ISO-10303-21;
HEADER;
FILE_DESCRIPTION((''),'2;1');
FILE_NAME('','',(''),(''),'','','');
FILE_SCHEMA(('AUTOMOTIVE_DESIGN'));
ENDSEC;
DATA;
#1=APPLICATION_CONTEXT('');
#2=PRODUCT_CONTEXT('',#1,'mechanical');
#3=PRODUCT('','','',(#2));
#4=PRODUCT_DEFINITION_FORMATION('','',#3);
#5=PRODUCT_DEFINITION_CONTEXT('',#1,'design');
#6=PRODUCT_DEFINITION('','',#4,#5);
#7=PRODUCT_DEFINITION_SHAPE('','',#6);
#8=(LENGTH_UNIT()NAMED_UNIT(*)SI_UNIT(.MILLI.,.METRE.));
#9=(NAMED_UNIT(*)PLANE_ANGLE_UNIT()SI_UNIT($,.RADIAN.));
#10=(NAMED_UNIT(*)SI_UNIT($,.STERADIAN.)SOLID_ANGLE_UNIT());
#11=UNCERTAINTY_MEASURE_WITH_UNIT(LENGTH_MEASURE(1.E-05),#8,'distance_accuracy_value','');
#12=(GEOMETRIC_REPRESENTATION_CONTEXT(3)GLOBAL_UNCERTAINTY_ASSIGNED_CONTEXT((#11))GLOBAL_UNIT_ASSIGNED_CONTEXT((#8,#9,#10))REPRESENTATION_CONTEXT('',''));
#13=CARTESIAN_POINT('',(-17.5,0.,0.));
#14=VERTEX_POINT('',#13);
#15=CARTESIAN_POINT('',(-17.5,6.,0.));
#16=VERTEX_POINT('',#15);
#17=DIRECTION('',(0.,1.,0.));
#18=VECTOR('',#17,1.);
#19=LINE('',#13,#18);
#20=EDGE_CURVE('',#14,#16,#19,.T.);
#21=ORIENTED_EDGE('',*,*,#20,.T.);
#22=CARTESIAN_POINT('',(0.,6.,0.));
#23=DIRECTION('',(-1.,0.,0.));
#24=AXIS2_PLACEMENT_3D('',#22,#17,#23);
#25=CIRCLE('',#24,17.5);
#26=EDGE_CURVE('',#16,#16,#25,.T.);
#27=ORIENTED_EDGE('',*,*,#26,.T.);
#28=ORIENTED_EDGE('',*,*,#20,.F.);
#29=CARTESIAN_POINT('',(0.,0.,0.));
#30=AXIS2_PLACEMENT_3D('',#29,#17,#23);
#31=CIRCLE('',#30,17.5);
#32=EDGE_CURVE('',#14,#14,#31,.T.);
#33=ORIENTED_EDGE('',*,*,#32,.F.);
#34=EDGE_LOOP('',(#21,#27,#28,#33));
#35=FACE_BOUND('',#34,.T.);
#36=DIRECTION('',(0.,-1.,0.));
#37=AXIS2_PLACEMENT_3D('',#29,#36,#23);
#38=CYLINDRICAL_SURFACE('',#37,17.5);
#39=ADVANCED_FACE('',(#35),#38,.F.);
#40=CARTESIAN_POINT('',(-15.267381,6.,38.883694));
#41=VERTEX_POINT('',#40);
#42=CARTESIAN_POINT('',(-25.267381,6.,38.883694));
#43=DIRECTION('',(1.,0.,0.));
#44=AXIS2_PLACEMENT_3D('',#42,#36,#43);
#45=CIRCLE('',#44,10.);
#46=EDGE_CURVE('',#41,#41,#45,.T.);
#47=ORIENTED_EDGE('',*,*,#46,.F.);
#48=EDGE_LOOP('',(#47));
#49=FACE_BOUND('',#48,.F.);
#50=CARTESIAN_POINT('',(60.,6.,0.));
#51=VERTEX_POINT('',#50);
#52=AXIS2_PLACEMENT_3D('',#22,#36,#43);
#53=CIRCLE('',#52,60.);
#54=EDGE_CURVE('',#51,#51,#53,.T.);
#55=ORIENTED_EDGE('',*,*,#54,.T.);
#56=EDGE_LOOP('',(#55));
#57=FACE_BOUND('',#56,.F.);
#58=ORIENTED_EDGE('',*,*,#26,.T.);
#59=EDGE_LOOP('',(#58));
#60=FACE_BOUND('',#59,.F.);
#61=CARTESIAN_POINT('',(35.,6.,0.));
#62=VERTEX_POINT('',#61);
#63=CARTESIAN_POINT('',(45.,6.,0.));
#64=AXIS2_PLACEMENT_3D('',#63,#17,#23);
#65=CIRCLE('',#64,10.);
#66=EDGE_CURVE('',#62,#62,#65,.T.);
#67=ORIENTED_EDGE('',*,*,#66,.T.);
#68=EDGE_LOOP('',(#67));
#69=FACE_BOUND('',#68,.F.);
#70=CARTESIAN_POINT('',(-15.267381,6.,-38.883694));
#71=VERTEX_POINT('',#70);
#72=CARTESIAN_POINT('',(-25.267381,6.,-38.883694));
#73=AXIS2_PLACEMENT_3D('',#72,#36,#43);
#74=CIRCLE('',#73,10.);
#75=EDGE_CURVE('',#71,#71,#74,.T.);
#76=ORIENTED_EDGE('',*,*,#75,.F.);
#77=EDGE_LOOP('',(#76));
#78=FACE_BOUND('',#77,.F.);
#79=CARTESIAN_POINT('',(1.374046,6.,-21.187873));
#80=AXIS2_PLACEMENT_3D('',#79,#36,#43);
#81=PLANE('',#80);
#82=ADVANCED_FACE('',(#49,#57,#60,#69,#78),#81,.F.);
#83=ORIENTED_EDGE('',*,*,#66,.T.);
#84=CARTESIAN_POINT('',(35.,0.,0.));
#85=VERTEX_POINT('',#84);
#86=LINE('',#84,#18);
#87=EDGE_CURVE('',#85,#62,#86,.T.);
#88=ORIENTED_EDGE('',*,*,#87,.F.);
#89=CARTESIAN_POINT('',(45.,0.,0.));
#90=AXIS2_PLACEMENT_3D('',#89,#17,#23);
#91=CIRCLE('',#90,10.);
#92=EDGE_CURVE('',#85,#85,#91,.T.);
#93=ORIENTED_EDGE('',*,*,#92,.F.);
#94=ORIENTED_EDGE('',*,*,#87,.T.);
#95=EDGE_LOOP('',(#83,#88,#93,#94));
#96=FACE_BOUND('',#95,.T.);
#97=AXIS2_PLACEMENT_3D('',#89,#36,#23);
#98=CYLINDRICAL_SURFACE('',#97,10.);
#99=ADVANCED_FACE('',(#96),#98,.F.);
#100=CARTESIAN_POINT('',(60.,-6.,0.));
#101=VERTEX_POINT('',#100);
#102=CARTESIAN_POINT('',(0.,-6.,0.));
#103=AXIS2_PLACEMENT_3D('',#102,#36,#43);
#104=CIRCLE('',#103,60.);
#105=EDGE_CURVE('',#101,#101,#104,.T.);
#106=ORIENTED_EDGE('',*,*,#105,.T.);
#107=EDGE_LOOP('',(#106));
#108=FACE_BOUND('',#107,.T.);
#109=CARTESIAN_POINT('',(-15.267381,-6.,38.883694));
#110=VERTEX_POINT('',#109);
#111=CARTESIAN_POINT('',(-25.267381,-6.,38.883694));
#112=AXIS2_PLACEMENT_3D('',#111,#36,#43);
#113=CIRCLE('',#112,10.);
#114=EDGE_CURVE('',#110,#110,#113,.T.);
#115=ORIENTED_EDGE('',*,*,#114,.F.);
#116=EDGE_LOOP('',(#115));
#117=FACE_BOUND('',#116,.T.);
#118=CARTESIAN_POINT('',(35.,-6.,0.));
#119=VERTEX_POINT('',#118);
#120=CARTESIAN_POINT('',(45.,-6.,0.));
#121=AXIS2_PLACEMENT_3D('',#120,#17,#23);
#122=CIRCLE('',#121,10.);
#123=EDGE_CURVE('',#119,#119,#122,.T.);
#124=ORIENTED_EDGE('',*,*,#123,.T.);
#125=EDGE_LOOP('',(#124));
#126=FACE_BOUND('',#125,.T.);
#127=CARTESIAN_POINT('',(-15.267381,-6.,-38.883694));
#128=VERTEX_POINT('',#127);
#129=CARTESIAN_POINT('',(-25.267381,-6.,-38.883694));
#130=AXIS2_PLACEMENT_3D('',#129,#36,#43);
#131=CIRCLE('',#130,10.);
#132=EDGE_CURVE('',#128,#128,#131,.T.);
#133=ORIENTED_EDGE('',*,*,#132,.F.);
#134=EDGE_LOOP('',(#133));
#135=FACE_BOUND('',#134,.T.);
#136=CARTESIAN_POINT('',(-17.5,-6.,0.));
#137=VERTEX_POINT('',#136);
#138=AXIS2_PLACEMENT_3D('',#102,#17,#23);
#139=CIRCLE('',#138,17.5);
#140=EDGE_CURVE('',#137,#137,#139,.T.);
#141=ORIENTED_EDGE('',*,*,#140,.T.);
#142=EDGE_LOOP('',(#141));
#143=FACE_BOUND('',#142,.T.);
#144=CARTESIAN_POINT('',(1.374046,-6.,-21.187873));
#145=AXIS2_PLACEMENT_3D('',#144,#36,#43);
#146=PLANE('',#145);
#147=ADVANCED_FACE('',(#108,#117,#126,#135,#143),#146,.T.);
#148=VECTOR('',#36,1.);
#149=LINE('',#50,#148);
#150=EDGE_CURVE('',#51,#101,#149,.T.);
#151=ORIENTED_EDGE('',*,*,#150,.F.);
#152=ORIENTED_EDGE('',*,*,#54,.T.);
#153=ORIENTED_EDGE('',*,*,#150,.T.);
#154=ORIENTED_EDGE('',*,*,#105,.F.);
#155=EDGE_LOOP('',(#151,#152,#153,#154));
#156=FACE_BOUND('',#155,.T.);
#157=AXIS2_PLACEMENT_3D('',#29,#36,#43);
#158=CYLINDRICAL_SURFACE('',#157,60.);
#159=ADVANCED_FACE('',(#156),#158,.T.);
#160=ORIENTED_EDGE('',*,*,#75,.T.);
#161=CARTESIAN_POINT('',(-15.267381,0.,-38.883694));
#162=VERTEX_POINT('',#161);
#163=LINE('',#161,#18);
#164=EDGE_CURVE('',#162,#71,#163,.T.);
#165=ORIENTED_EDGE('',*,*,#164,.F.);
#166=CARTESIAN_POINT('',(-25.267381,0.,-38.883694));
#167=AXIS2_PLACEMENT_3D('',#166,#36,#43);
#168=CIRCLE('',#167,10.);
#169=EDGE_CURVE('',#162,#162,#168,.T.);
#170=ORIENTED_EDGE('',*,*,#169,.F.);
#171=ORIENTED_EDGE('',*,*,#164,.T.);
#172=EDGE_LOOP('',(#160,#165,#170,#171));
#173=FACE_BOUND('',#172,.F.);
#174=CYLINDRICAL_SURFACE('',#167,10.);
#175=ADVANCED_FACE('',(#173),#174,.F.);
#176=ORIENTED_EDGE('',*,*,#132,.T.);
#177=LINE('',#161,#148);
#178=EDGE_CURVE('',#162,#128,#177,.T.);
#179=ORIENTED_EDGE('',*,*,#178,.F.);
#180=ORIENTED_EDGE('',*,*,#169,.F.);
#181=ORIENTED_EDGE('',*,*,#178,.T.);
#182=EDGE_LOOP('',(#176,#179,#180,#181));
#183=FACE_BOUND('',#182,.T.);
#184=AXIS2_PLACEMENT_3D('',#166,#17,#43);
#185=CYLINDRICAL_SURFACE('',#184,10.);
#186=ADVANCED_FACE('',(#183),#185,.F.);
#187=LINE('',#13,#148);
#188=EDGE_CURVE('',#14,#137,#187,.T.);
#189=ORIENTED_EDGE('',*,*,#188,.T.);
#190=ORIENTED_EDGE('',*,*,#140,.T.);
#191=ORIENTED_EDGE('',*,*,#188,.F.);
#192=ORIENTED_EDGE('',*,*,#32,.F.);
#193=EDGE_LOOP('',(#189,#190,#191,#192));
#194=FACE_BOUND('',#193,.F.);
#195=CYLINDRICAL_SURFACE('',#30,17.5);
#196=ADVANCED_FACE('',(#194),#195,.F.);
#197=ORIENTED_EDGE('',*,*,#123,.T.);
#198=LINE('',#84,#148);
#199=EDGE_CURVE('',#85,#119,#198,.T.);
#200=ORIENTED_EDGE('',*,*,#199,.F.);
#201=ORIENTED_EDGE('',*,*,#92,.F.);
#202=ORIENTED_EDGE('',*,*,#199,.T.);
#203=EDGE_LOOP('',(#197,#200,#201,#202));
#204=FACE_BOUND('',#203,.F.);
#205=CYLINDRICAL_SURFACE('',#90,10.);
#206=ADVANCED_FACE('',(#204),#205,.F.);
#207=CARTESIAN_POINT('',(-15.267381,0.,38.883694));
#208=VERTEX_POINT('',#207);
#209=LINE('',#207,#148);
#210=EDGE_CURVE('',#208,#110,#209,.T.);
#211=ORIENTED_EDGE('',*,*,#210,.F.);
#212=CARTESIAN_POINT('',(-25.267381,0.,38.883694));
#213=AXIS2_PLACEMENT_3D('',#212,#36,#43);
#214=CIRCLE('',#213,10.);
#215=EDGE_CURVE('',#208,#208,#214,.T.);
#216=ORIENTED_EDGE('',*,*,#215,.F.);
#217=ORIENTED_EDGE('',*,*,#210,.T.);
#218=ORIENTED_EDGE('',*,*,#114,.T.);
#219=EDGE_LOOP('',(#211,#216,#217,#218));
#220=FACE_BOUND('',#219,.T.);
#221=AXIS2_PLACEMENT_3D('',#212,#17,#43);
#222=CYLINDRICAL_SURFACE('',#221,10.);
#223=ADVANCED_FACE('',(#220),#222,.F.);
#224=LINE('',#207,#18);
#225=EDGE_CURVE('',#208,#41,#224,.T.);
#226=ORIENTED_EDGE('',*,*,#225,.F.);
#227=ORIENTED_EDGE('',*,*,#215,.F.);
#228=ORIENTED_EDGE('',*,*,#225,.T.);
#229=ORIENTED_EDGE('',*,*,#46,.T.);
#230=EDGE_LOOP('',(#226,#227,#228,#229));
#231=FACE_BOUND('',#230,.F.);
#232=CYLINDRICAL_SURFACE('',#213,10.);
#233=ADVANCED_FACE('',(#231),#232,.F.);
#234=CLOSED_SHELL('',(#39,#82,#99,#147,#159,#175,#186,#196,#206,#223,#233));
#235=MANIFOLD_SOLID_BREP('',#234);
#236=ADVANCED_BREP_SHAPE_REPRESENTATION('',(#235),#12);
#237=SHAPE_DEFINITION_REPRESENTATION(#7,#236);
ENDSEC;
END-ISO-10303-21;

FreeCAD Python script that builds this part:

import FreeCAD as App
import Part
import Sketcher

V = App.Vector

doc = App.newDocument("Part")
body = doc.addObject("PartDesign::Body", "Body")

# Sketch on XZ plane
sketch1 = body.newObject("Sketcher::SketchObject", "Sketch")
sketch1.AttachmentSupport = (doc.getObject("XZ_Plane"), [""])
sketch1.MapMode = "FlatFace"
sketch1.addGeometry(Part.Circle(V(0, 0, 0), V(0, 0, 1), 60), False)
sketch1.addGeometry(Part.Circle(V(-25, -39, 0), V(0, 0, 1), 10), False)
sketch1.addGeometry(Part.Circle(V(0, 0, 0), V(0, 0, 1), 18), False)
sketch1.addGeometry(Part.Circle(V(-25, 39, 0), V(0, 0, 1), 10), False)
sketch1.addGeometry(Part.Circle(V(45, 0, 0), V(0, 0, 1), 10), False)
sketch1.addConstraint(Sketcher.Constraint("Coincident", 0, 3, -1, 1))
sketch1.addConstraint(Sketcher.Constraint("Coincident", 2, 3, -1, 1))
sketch1.addConstraint(Sketcher.Constraint("Equal", 1, 3))
sketch1.addConstraint(Sketcher.Constraint("Equal", 3, 4))
sketch1.addConstraint(Sketcher.Constraint("Symmetric", 1, 3, 3, 3, -1))
sketch1.addConstraint(Sketcher.Constraint("PointOnObject", 4, 3, -1))
sketch1.addConstraint(Sketcher.Constraint("Diameter", 0, 120.0))
sketch1.addConstraint(Sketcher.Constraint("Diameter", 1, 20.0))
sketch1.addConstraint(Sketcher.Constraint("Diameter", 2, 35.0))
sketch1.addConstraint(Sketcher.Constraint("DistanceX", -1, 1, 4, 3, 45.0))
sketch1.addConstraint(Sketcher.Constraint("DistanceX", 1, 3, -1, 1, 25.267381))
sketch1.addConstraint(Sketcher.Constraint("DistanceY", 1, 3, -1, 1, 38.883694))
pad1 = body.newObject("PartDesign::Pad", "Pad")
pad1.Profile = sketch1
pad1.Length = 12
pad1.Midplane = True

doc.recompute()
